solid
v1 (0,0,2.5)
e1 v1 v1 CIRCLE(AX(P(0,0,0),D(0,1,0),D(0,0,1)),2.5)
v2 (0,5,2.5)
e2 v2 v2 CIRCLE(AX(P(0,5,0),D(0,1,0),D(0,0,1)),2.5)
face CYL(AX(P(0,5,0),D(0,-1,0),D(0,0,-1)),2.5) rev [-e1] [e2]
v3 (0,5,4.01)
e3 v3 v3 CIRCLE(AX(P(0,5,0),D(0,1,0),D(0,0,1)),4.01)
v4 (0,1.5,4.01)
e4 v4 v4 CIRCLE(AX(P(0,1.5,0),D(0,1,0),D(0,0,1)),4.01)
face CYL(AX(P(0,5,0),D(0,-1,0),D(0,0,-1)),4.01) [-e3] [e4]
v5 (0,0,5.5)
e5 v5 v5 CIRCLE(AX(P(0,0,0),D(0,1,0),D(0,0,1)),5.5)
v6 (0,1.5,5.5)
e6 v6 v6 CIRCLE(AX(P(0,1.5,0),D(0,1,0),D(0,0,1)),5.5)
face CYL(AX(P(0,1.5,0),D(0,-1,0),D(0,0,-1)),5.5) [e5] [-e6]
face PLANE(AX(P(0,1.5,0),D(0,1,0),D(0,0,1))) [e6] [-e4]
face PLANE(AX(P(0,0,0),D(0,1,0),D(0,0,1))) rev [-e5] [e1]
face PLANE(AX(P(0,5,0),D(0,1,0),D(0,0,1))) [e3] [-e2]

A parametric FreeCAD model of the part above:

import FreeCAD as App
import Part
import Sketcher

V = App.Vector

doc = App.newDocument("Part")
body = doc.addObject("PartDesign::Body", "Body")

# Sketch on XZ plane
sketch1 = body.newObject("Sketcher::SketchObject", "Sketch")
sketch1.AttachmentSupport = (doc.getObject("XZ_Plane"), [""])
sketch1.MapMode = "FlatFace"
sketch1.addGeometry(Part.Circle(V(0, 0, 0), V(0, 0, 1), 4.01), False)
sketch1.addGeometry(Part.Circle(V(0, 0, 0), V(0, 0, 1), 2.5), False)
sketch1.addConstraint(Sketcher.Constraint("Coincident", 0, 3, -1, 1))
sketch1.addConstraint(Sketcher.Constraint("Coincident", 1, 3, -1, 1))
sketch1.addConstraint(Sketcher.Constraint("Diameter", 1, 5.0))
sketch1.addConstraint(Sketcher.Constraint("Diameter", 0, 8.02))
pad1 = body.newObject("PartDesign::Pad", "Pad")
pad1.Profile = sketch1
pad1.Length = 5
pad1.Reversed = True

# Sketch on XZ plane
sketch2 = body.newObject("Sketcher::SketchObject", "Sketch001")
sketch2.AttachmentSupport = (doc.getObject("XZ_Plane"), [""])
sketch2.MapMode = "FlatFace"
sketch2.addGeometry(Part.Circle(V(0, 0, 0), V(0, 0, 1), 5.5), False)
sketch2.addGeometry(Part.Circle(V(0, 0, 0), V(0, 0, 1), 4.01), False)
sketch2.addConstraint(Sketcher.Constraint("Coincident", 0, 3, -1, 1))
sketch2.addConstraint(Sketcher.Constraint("Coincident", 1, 3, -1, 1))
sketch2.addConstraint(Sketcher.Constraint("Diameter", 0, 11.0))
sketch2.addConstraint(Sketcher.Constraint("Diameter", 1, 8.02))
pad2 = body.newObject("PartDesign::Pad", "Pad001")
pad2.Profile = sketch2
pad2.Length = 1.5
pad2.Reversed = True

doc.recompute()
